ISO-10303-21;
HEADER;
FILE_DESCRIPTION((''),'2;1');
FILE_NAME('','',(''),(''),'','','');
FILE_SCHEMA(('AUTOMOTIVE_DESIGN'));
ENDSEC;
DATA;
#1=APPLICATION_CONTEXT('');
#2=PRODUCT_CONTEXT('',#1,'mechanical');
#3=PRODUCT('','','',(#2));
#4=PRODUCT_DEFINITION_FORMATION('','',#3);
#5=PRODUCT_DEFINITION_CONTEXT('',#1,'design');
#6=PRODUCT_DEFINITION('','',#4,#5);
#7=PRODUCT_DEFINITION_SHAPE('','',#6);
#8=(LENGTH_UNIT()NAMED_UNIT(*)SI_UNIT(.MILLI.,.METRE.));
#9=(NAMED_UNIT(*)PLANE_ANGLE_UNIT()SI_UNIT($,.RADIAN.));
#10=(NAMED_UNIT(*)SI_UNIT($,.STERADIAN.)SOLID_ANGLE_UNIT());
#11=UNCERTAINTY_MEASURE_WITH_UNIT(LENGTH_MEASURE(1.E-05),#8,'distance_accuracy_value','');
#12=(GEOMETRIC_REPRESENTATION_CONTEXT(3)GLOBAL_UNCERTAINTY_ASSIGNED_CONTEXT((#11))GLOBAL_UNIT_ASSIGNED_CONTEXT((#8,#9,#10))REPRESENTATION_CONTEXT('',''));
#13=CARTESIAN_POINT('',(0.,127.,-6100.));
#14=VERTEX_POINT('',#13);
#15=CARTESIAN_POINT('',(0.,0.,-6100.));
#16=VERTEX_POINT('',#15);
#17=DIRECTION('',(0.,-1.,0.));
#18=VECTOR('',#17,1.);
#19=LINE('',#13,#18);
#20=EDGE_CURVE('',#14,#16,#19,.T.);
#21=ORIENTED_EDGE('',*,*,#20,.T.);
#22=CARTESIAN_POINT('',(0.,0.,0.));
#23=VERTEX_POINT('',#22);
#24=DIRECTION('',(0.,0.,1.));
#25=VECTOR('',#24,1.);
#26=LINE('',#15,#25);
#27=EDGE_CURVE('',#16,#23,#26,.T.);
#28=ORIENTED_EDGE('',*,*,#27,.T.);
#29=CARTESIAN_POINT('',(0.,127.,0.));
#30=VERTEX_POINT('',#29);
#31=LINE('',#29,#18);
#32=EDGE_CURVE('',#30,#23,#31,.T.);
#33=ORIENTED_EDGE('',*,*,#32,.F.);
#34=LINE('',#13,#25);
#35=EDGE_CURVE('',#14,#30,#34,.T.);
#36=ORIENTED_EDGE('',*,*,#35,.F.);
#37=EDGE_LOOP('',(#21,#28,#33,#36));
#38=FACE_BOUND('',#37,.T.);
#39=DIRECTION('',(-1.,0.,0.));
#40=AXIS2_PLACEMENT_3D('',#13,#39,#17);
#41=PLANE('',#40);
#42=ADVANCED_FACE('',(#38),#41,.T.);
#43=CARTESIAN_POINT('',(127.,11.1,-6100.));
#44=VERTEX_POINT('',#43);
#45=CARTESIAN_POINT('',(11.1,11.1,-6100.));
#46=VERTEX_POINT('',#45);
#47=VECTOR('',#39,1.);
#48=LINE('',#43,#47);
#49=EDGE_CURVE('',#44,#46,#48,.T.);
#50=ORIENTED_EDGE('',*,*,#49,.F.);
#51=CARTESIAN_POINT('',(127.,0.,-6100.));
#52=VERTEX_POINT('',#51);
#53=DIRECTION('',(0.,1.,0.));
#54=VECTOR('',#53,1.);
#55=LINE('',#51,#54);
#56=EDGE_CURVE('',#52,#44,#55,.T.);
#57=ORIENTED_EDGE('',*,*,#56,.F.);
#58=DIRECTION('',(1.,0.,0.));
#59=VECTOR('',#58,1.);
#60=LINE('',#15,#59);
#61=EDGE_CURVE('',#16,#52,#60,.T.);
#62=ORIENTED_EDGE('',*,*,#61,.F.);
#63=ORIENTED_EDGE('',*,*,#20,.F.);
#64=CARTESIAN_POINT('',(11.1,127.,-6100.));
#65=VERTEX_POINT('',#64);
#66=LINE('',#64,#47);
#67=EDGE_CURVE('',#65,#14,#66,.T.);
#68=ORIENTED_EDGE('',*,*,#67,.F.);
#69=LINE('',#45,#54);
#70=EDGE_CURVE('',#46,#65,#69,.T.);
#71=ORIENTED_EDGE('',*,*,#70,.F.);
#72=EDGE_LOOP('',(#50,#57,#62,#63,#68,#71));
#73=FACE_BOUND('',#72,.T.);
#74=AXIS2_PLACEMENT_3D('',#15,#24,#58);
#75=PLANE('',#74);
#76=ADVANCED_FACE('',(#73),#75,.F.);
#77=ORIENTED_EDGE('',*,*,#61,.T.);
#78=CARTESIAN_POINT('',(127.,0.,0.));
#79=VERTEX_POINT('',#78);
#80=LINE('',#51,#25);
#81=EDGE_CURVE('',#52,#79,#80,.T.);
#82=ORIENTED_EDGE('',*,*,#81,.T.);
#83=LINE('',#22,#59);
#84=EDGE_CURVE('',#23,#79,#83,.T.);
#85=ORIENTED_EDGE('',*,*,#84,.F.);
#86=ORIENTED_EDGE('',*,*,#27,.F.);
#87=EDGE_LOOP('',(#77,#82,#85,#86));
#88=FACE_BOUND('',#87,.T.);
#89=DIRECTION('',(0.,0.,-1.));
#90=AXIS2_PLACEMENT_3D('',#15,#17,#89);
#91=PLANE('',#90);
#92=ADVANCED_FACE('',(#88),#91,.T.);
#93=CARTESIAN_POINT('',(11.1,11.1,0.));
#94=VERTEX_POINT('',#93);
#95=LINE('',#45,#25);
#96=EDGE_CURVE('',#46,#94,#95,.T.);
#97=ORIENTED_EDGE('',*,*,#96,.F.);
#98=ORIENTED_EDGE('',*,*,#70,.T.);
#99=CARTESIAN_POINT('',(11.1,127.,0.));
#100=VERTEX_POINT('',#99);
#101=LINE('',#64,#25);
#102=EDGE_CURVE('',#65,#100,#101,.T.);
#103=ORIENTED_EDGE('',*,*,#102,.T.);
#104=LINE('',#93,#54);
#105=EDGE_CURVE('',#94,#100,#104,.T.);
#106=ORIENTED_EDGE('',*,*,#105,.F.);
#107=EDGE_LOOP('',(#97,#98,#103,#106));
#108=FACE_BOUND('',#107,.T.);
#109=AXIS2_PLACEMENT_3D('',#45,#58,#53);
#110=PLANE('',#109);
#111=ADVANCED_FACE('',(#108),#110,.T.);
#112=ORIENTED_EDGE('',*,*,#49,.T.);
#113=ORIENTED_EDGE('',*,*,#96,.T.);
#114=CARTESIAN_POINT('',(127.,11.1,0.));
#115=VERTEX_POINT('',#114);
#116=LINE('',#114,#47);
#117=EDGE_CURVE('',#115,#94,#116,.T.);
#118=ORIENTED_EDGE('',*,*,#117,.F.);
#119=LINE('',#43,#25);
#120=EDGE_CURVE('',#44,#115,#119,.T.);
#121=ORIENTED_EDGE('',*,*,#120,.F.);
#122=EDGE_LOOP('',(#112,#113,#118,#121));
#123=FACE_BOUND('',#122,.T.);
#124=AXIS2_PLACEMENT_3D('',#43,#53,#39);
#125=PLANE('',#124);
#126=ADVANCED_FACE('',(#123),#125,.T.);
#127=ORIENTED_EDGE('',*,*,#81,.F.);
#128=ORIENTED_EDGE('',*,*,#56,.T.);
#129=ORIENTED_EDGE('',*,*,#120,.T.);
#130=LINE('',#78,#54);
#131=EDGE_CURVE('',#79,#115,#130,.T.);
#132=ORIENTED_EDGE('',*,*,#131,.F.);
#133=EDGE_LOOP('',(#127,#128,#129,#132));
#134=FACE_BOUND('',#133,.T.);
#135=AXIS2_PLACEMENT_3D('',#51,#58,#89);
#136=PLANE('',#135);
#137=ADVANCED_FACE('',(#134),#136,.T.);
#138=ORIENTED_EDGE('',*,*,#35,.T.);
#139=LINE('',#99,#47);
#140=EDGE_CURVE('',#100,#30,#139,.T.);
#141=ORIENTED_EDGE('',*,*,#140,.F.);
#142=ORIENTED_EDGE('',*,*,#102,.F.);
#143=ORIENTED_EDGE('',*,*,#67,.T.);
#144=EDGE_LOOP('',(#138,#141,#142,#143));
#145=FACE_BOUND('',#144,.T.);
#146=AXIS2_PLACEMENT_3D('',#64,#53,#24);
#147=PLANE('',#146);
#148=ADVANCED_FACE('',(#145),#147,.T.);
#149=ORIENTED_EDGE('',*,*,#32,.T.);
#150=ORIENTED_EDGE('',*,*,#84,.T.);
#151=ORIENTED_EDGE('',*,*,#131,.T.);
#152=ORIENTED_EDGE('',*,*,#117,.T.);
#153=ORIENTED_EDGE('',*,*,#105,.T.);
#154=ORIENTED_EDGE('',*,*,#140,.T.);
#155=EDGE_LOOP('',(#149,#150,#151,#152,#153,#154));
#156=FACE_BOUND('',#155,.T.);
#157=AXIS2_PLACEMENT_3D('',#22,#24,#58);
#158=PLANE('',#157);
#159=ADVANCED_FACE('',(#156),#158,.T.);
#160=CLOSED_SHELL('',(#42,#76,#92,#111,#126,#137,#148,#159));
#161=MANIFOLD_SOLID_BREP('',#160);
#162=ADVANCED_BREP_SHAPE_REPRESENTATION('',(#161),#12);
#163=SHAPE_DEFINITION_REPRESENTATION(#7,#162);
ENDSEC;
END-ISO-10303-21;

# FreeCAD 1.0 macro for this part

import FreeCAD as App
import Part
import Sketcher
from FreeCAD import Vector

doc = App.newDocument("Part")
params = doc.addObject("Spreadsheet::Sheet", "Params")
for row, (alias, value) in enumerate([
    ("sketch1_width", "127 mm"),
    ("sketch1_width2", "115.9 mm"),
    ("pad1_length", "6100 mm"),
], start=1):
    params.set(f"A{row}", alias)
    params.set(f"B{row}", "=" + value)
    params.setAlias(f"B{row}", alias)

body = doc.addObject("PartDesign::Body", "Body")

# Sketch on XY plane
sketch1 = body.newObject("Sketcher::SketchObject", "Sketch")
sketch1.AttachmentSupport = (doc.getObject("XY_Plane"), [""])
sketch1.MapMode = "FlatFace"
sketch1.addGeometry(Part.LineSegment(Vector(0, 127, 0), Vector(0, 0, 0)), False)
sketch1.addGeometry(Part.LineSegment(Vector(0, 0, 0), Vector(127, 0, 0)), False)
sketch1.addGeometry(Part.LineSegment(Vector(127, 0, 0), Vector(127, 11, 0)), False)
sketch1.addGeometry(Part.LineSegment(Vector(127, 11, 0), Vector(11, 11, 0)), False)
sketch1.addGeometry(Part.LineSegment(Vector(11, 11, 0), Vector(11, 127, 0)), False)
sketch1.addGeometry(Part.LineSegment(Vector(11, 127, 0), Vector(0, 127, 0)), False)
sketch1.addConstraint(Sketcher.Constraint("Coincident", 0, 2, 1, 1))
sketch1.addConstraint(Sketcher.Constraint("Coincident", 1, 2, 2, 1))
sketch1.addConstraint(Sketcher.Constraint("Coincident", 2, 2, 3, 1))
sketch1.addConstraint(Sketcher.Constraint("Coincident", 3, 2, 4, 1))
sketch1.addConstraint(Sketcher.Constraint("Coincident", 4, 2, 5, 1))
sketch1.addConstraint(Sketcher.Constraint("Coincident", 5, 2, 0, 1))
sketch1.addConstraint(Sketcher.Constraint("Vertical", 0))
sketch1.addConstraint(Sketcher.Constraint("Horizontal", 1))
sketch1.addConstraint(Sketcher.Constraint("Vertical", 2))
sketch1.addConstraint(Sketcher.Constraint("Horizontal", 3))
sketch1.addConstraint(Sketcher.Constraint("Vertical", 4))
sketch1.addConstraint(Sketcher.Constraint("Horizontal", 5))
sketch1.addConstraint(Sketcher.Constraint("Coincident", 0, 2, -1, 1))
sketch1.addConstraint(Sketcher.Constraint("Equal", 1, 0))
sketch1.addConstraint(Sketcher.Constraint("Equal", 5, 2))
sketch1.addConstraint(Sketcher.Constraint("DistanceX", 1, 1, 1, 2, 127.0))
sketch1.addConstraint(Sketcher.Constraint("DistanceX", 3, 2, 3, 1, 115.9))
sketch1.setExpression("Constraints[15]", "Params.sketch1_width")
sketch1.setExpression("Constraints[16]", "Params.sketch1_width2")
pad1 = body.newObject("PartDesign::Pad", "Pad")
pad1.Profile = sketch1
pad1.setExpression("Length", "Params.pad1_length")
pad1.Reversed = True

doc.recompute()
